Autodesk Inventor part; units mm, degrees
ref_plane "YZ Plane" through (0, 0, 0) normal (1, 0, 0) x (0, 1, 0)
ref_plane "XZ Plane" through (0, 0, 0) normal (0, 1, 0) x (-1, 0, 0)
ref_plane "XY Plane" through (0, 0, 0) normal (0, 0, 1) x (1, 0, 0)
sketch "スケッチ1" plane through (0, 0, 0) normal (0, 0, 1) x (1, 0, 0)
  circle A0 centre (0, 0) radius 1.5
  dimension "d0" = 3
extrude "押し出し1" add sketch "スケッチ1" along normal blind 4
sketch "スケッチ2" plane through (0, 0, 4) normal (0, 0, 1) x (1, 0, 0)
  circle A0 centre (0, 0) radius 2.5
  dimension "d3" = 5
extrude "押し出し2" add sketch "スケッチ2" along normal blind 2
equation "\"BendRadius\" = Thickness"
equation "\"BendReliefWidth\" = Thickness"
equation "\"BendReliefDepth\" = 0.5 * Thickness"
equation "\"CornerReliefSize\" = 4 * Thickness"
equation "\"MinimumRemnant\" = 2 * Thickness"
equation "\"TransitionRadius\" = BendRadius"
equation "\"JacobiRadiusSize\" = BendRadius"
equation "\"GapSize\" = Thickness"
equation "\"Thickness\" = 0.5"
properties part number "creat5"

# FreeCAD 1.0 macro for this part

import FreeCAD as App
import Part
import Sketcher

V = App.Vector

doc = App.newDocument("Part")
params = doc.addObject("Spreadsheet::Sheet", "Params")
for row, (alias, value) in enumerate([
    ("sketch1_diameter", "3 mm"),
    ("pad1_length", "4 mm"),
    ("sketch2_diameter", "5 mm"),
    ("pad2_length", "2 mm"),
], start=1):
    params.set(f"A{row}", alias)
    params.set(f"B{row}", "=" + value)
    params.setAlias(f"B{row}", alias)

body = doc.addObject("PartDesign::Body", "Body")

sketch1 = body.newObject("Sketcher::SketchObject", "Sketch")
sketch1.AttachmentSupport = (doc.getObject("XY_Plane"), [""])
sketch1.MapMode = "FlatFace"
sketch1.addGeometry(Part.Circle(V(0, 0, 0), V(0, 0, 1), 1.5), False)
sketch1.addConstraint([
    Sketcher.Constraint("Coincident", 0, 3, -1, 1),
    Sketcher.Constraint("Diameter", 0, 3.0),
])
sketch1.setExpression("Constraints[1]", "Params.sketch1_diameter")
pad1 = body.newObject("PartDesign::Pad", "Pad")
pad1.Profile = sketch1
pad1.setExpression("Length", "Params.pad1_length")

sketch2 = body.newObject("Sketcher::SketchObject", "Sketch001")
sketch2.AttachmentSupport = (doc.getObject("XY_Plane"), [""])
sketch2.MapMode = "FlatFace"
sketch2.AttachmentOffset = App.Placement(V(0, 0, 4), App.Rotation())
sketch2.addGeometry(Part.Circle(V(0, 0, 0), V(0, 0, 1), 2.5), False)
sketch2.addConstraint([
    Sketcher.Constraint("Coincident", 0, 3, -1, 1),
    Sketcher.Constraint("Diameter", 0, 5.0),
])
sketch2.setExpression("Constraints[1]", "Params.sketch2_diameter")
pad2 = body.newObject("PartDesign::Pad", "Pad001")
pad2.Profile = sketch2
pad2.setExpression("Length", "Params.pad2_length")

doc.recompute()
